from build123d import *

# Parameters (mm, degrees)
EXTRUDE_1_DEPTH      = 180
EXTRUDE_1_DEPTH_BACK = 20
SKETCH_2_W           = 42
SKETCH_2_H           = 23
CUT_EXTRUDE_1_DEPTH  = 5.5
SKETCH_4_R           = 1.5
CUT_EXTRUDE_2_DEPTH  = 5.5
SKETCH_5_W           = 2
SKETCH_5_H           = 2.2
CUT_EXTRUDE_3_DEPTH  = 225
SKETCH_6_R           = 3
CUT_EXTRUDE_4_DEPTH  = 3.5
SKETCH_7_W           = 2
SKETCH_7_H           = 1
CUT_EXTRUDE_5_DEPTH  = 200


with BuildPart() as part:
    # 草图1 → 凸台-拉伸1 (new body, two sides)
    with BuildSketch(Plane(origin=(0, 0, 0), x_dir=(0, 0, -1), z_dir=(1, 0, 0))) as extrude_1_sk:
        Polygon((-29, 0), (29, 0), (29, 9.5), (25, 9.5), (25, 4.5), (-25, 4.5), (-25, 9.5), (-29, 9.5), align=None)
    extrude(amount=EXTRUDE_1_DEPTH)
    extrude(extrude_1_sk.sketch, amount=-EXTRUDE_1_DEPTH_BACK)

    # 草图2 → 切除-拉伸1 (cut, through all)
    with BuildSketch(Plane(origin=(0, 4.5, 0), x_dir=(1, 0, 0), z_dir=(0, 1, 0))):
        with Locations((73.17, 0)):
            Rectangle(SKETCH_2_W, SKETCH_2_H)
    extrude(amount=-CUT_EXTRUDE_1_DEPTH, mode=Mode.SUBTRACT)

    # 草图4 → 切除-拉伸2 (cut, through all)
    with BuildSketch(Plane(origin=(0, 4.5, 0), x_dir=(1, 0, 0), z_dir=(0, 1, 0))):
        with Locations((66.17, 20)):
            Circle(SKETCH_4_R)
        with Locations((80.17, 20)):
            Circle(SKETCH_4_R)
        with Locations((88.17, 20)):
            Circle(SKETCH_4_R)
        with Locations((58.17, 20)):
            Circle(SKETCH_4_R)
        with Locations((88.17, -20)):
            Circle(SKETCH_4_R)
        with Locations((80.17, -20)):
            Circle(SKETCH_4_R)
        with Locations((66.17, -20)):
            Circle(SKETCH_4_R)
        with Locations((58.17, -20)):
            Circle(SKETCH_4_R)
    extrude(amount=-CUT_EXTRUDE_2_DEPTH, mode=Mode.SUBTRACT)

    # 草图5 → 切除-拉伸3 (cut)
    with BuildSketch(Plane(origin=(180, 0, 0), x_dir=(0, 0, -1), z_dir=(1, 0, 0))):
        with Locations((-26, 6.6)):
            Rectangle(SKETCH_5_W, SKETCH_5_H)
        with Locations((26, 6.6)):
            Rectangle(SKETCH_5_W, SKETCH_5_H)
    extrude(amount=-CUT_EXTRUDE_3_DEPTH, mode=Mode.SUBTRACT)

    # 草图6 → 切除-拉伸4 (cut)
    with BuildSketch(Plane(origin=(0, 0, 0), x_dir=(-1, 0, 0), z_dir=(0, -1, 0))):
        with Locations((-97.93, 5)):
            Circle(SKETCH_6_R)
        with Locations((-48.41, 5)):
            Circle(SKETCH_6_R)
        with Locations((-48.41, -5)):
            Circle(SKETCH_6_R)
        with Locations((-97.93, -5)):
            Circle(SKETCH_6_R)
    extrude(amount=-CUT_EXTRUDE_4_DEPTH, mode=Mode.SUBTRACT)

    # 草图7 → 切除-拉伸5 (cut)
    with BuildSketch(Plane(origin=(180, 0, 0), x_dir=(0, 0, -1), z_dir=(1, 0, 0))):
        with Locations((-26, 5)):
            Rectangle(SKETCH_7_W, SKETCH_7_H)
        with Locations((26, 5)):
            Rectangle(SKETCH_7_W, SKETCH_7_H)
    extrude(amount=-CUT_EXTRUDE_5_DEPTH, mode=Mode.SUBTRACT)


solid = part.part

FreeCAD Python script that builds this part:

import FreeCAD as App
import Part
import Sketcher
from FreeCAD import Vector


def add_polygon(sketch, points):
    """Adds a closed chain of lines whose ends are joined by coincident constraints."""
    first, n = sketch.GeometryCount, len(points)
    for a, b in zip(points, points[1:] + points[:1]):
        sketch.addGeometry(Part.LineSegment(App.Vector(*a, 0), App.Vector(*b, 0)), False)
    for i in range(n):
        sketch.addConstraint(Sketcher.Constraint("Coincident", first + i, 2, first + (i + 1) % n, 1))

doc = App.newDocument("Part")
body = doc.addObject("PartDesign::Body", "Body")

# Sketch on YZ plane
sketch1 = body.newObject("Sketcher::SketchObject", "Sketch")
sketch1.AttachmentSupport = (doc.getObject("YZ_Plane"), [""])
sketch1.MapMode = "FlatFace"
add_polygon(sketch1, [(0, 29), (0, -29), (9.5, -29), (9.5, -25), (4.5, -25), (4.5, 25), (9.5, 25), (9.5, 29)])  # lines 0-7
sketch1.addConstraint(Sketcher.Constraint("Vertical", 0))
sketch1.addConstraint(Sketcher.Constraint("Horizontal", 1))
sketch1.addConstraint(Sketcher.Constraint("Vertical", 2))
sketch1.addConstraint(Sketcher.Constraint("Horizontal", 3))
sketch1.addConstraint(Sketcher.Constraint("Vertical", 4))
sketch1.addConstraint(Sketcher.Constraint("Horizontal", 5))
sketch1.addConstraint(Sketcher.Constraint("Vertical", 6))
sketch1.addConstraint(Sketcher.Constraint("Horizontal", 7))
sketch1.addConstraint(Sketcher.Constraint("Symmetric", 0, 2, 7, 2, -1, 1))
sketch1.addConstraint(Sketcher.Constraint("Symmetric", 2, 2, 5, 2, -1))
sketch1.addConstraint(Sketcher.Constraint("DistanceX", 3, 2, 3, 1, 5.0))
sketch1.addConstraint(Sketcher.Constraint("DistanceY", 0, 2, 0, 1, 58.0))
sketch1.addConstraint(Sketcher.Constraint("DistanceY", 2, 1, 2, 2, 4.0))
sketch1.addConstraint(Sketcher.Constraint("DistanceX", 1, 1, 1, 2, 9.5))
pad1 = body.newObject("PartDesign::Pad", "Pad")
pad1.Profile = sketch1
pad1.Type = "TwoLengths"
pad1.Length = 180
pad1.Length2 = 20

# Sketch on XZ plane
sketch2 = body.newObject("Sketcher::SketchObject", "Sketch001")
sketch2.AttachmentSupport = (doc.getObject("XZ_Plane"), [""])
sketch2.MapMode = "FlatFace"
sketch2.AttachmentOffset = App.Placement(Vector(0, 0, -4.5), App.Rotation())
add_polygon(sketch2, [(52, -12), (52, 12), (94, 12), (94, -12)])  # lines 0-3
sketch2.addConstraint(Sketcher.Constraint("Vertical", 0))
sketch2.addConstraint(Sketcher.Constraint("Horizontal", 1))
sketch2.addConstraint(Sketcher.Constraint("Vertical", 2))
sketch2.addConstraint(Sketcher.Constraint("Horizontal", 3))
sketch2.addConstraint(Sketcher.Constraint("DistanceX", 1, 1, 1, 2, 42.0))
sketch2.addConstraint(Sketcher.Constraint("DistanceY", 0, 1, 0, 2, 23.0))
sketch2.addConstraint(Sketcher.Constraint("DistanceY", -1, 1, 0, 2, 11.5))
sketch2.addConstraint(Sketcher.Constraint("DistanceX", -1, 1, 0, 2, 52.17))
pocket1 = body.newObject("PartDesign::Pocket", "Pocket")
pocket1.Profile = sketch2
pocket1.Type = "ThroughAll"
pocket1.Reversed = True

# Sketch on XZ plane
sketch3 = body.newObject("Sketcher::SketchObject", "Sketch002")
sketch3.AttachmentSupport = (doc.getObject("XZ_Plane"), [""])
sketch3.MapMode = "FlatFace"
sketch3.AttachmentOffset = App.Placement(Vector(0, 0, -4.5), App.Rotation())
sketch3.addGeometry(Part.Circle(Vector(66.2, -20, 0), Vector(0, 0, 1), 1.5), False)
sketch3.addGeometry(Part.Circle(Vector(80.2, -20, 0), Vector(0, 0, 1), 1.5), False)
sketch3.addGeometry(Part.Circle(Vector(88.2, -20, 0), Vector(0, 0, 1), 1.5), False)
sketch3.addGeometry(Part.Circle(Vector(58.2, -20, 0), Vector(0, 0, 1), 1.5), False)
sketch3.addGeometry(Part.Circle(Vector(88.2, 20, 0), Vector(0, 0, 1), 1.5), False)
sketch3.addGeometry(Part.Circle(Vector(80.2, 20, 0), Vector(0, 0, 1), 1.5), False)
sketch3.addGeometry(Part.Circle(Vector(66.2, 20, 0), Vector(0, 0, 1), 1.5), False)
sketch3.addGeometry(Part.Circle(Vector(58.2, 20, 0), Vector(0, 0, 1), 1.5), False)
sketch3.addConstraint(Sketcher.Constraint("Equal", 0, 1))
sketch3.addConstraint(Sketcher.Constraint("Equal", 1, 2))
sketch3.addConstraint(Sketcher.Constraint("Equal", 2, 3))
sketch3.addConstraint(Sketcher.Constraint("Equal", 3, 4))
sketch3.addConstraint(Sketcher.Constraint("Equal", 4, 5))
sketch3.addConstraint(Sketcher.Constraint("Equal", 5, 6))
sketch3.addConstraint(Sketcher.Constraint("Equal", 6, 7))
sketch3.addConstraint(Sketcher.Constraint("Symmetric", 2, 3, 4, 3, -1))
sketch3.addConstraint(Sketcher.Constraint("Symmetric", 1, 3, 5, 3, -1))
sketch3.addConstraint(Sketcher.Constraint("Symmetric", 0, 3, 6, 3, -1))
sketch3.addConstraint(Sketcher.Constraint("Symmetric", 3, 3, 7, 3, -1))
sketch3.addConstraint(Sketcher.Constraint("Horizontal", 0, 3, 1, 3))
sketch3.addConstraint(Sketcher.Constraint("Horizontal", 1, 3, 2, 3))
sketch3.addConstraint(Sketcher.Constraint("Horizontal", 2, 3, 3, 3))
sketch3.addConstraint(Sketcher.Constraint("Diameter", 0, 3.0))
sketch3.addConstraint(Sketcher.Constraint("DistanceY", 0, 3, -1, 1, 20.0))
sketch3.addConstraint(Sketcher.Constraint("DistanceX", 0, 3, 1, 3, 14.0))
sketch3.addConstraint(Sketcher.Constraint("DistanceX", 1, 3, 2, 3, 8.0))
sketch3.addConstraint(Sketcher.Constraint("DistanceX", 3, 3, 0, 3, 8.0))
sketch3.addConstraint(Sketcher.Constraint("DistanceX", -1, 1, 0, 3, 66.17))
pocket2 = body.newObject("PartDesign::Pocket", "Pocket001")
pocket2.Profile = sketch3
pocket2.Type = "ThroughAll"
pocket2.Reversed = True

# Sketch on YZ plane
sketch4 = body.newObject("Sketcher::SketchObject", "Sketch003")
sketch4.AttachmentSupport = (doc.getObject("YZ_Plane"), [""])
sketch4.MapMode = "FlatFace"
sketch4.AttachmentOffset = App.Placement(Vector(0, 0, 180), App.Rotation())
add_polygon(sketch4, [(7.7, 27), (5.5, 27), (5.5, 25), (7.7, 25)])  # lines 0-3
add_polygon(sketch4, [(7.7, -25), (5.5, -25), (5.5, -27), (7.7, -27)])  # lines 4-7
sketch4.addConstraint(Sketcher.Constraint("Horizontal", 0))
sketch4.addConstraint(Sketcher.Constraint("Vertical", 1))
sketch4.addConstraint(Sketcher.Constraint("Horizontal", 2))
sketch4.addConstraint(Sketcher.Constraint("Vertical", 3))
sketch4.addConstraint(Sketcher.Constraint("Horizontal", 4))
sketch4.addConstraint(Sketcher.Constraint("Vertical", 5))
sketch4.addConstraint(Sketcher.Constraint("Horizontal", 6))
sketch4.addConstraint(Sketcher.Constraint("Vertical", 7))
sketch4.addConstraint(Sketcher.Constraint("Symmetric", 1, 2, 4, 2, -1))
sketch4.addConstraint(Sketcher.Constraint("Symmetric", 3, 2, 6, 2, -1))
sketch4.addConstraint(Sketcher.Constraint("DistanceY", 1, 2, 1, 1, 2.0))
sketch4.addConstraint(Sketcher.Constraint("DistanceX", 0, 2, 0, 1, 2.2))
sketch4.addConstraint(Sketcher.Constraint("DistanceY", -1, 1, 0, 2, 27.0))
sketch4.addConstraint(Sketcher.Constraint("DistanceX", -1, 1, 0, 2, 5.5))
pocket3 = body.newObject("PartDesign::Pocket", "Pocket002")
pocket3.Profile = sketch4
pocket3.Length = 225

# Sketch on XZ plane
sketch5 = body.newObject("Sketcher::SketchObject", "Sketch004")
sketch5.AttachmentSupport = (doc.getObject("XZ_Plane"), [""])
sketch5.MapMode = "FlatFace"
sketch5.addGeometry(Part.Circle(Vector(97.9, -5, 0), Vector(0, 0, 1), 3), False)
sketch5.addGeometry(Part.Circle(Vector(48.4, -5, 0), Vector(0, 0, 1), 3), False)
sketch5.addGeometry(Part.Circle(Vector(48.4, 5, 0), Vector(0, 0, 1), 3), False)
sketch5.addGeometry(Part.Circle(Vector(97.9, 5, 0), Vector(0, 0, 1), 3), False)
sketch5.addConstraint(Sketcher.Constraint("Equal", 0, 1))
sketch5.addConstraint(Sketcher.Constraint("Equal", 1, 2))
sketch5.addConstraint(Sketcher.Constraint("Equal", 2, 3))
sketch5.addConstraint(Sketcher.Constraint("Symmetric", 1, 3, 2, 3, -1))
sketch5.addConstraint(Sketcher.Constraint("Symmetric", 0, 3, 3, 3, -1))
sketch5.addConstraint(Sketcher.Constraint("Horizontal", 0, 3, 1, 3))
sketch5.addConstraint(Sketcher.Constraint("Diameter", 0, 6.0))
sketch5.addConstraint(Sketcher.Constraint("DistanceY", 0, 3, -1, 1, 5.0))
sketch5.addConstraint(Sketcher.Constraint("DistanceX", -1, 1, 0, 3, 97.93))
sketch5.addConstraint(Sketcher.Constraint("DistanceX", -1, 1, 1, 3, 48.41))
pocket4 = body.newObject("PartDesign::Pocket", "Pocket003")
pocket4.Profile = sketch5
pocket4.Length = 3.5

# Sketch on YZ plane
sketch6 = body.newObject("Sketcher::SketchObject", "Sketch005")
sketch6.AttachmentSupport = (doc.getObject("YZ_Plane"), [""])
sketch6.MapMode = "FlatFace"
sketch6.AttachmentOffset = App.Placement(Vector(0, 0, 180), App.Rotation())
add_polygon(sketch6, [(5.5, 27), (4.5, 27), (4.5, 25), (5.5, 25)])  # lines 0-3
add_polygon(sketch6, [(5.5, -25), (4.5, -25), (4.5, -27), (5.5, -27)])  # lines 4-7
sketch6.addConstraint(Sketcher.Constraint("Horizontal", 0))
sketch6.addConstraint(Sketcher.Constraint("Vertical", 1))
sketch6.addConstraint(Sketcher.Constraint("Horizontal", 2))
sketch6.addConstraint(Sketcher.Constraint("Vertical", 3))
sketch6.addConstraint(Sketcher.Constraint("Horizontal", 4))
sketch6.addConstraint(Sketcher.Constraint("Vertical", 5))
sketch6.addConstraint(Sketcher.Constraint("Horizontal", 6))
sketch6.addConstraint(Sketcher.Constraint("Vertical", 7))
sketch6.addConstraint(Sketcher.Constraint("Symmetric", 1, 2, 4, 2, -1))
sketch6.addConstraint(Sketcher.Constraint("Symmetric", 3, 2, 6, 2, -1))
sketch6.addConstraint(Sketcher.Constraint("DistanceX", 0, 2, 0, 1, 1.0))
sketch6.addConstraint(Sketcher.Constraint("DistanceY", 1, 2, 1, 1, 2.0))
sketch6.addConstraint(Sketcher.Constraint("DistanceY", -1, 1, 0, 2, 27.0))
sketch6.addConstraint(Sketcher.Constraint("DistanceX", -1, 1, 0, 2, 4.5))
pocket5 = body.newObject("PartDesign::Pocket", "Pocket004")
pocket5.Profile = sketch6
pocket5.Length = 200

doc.recompute()
